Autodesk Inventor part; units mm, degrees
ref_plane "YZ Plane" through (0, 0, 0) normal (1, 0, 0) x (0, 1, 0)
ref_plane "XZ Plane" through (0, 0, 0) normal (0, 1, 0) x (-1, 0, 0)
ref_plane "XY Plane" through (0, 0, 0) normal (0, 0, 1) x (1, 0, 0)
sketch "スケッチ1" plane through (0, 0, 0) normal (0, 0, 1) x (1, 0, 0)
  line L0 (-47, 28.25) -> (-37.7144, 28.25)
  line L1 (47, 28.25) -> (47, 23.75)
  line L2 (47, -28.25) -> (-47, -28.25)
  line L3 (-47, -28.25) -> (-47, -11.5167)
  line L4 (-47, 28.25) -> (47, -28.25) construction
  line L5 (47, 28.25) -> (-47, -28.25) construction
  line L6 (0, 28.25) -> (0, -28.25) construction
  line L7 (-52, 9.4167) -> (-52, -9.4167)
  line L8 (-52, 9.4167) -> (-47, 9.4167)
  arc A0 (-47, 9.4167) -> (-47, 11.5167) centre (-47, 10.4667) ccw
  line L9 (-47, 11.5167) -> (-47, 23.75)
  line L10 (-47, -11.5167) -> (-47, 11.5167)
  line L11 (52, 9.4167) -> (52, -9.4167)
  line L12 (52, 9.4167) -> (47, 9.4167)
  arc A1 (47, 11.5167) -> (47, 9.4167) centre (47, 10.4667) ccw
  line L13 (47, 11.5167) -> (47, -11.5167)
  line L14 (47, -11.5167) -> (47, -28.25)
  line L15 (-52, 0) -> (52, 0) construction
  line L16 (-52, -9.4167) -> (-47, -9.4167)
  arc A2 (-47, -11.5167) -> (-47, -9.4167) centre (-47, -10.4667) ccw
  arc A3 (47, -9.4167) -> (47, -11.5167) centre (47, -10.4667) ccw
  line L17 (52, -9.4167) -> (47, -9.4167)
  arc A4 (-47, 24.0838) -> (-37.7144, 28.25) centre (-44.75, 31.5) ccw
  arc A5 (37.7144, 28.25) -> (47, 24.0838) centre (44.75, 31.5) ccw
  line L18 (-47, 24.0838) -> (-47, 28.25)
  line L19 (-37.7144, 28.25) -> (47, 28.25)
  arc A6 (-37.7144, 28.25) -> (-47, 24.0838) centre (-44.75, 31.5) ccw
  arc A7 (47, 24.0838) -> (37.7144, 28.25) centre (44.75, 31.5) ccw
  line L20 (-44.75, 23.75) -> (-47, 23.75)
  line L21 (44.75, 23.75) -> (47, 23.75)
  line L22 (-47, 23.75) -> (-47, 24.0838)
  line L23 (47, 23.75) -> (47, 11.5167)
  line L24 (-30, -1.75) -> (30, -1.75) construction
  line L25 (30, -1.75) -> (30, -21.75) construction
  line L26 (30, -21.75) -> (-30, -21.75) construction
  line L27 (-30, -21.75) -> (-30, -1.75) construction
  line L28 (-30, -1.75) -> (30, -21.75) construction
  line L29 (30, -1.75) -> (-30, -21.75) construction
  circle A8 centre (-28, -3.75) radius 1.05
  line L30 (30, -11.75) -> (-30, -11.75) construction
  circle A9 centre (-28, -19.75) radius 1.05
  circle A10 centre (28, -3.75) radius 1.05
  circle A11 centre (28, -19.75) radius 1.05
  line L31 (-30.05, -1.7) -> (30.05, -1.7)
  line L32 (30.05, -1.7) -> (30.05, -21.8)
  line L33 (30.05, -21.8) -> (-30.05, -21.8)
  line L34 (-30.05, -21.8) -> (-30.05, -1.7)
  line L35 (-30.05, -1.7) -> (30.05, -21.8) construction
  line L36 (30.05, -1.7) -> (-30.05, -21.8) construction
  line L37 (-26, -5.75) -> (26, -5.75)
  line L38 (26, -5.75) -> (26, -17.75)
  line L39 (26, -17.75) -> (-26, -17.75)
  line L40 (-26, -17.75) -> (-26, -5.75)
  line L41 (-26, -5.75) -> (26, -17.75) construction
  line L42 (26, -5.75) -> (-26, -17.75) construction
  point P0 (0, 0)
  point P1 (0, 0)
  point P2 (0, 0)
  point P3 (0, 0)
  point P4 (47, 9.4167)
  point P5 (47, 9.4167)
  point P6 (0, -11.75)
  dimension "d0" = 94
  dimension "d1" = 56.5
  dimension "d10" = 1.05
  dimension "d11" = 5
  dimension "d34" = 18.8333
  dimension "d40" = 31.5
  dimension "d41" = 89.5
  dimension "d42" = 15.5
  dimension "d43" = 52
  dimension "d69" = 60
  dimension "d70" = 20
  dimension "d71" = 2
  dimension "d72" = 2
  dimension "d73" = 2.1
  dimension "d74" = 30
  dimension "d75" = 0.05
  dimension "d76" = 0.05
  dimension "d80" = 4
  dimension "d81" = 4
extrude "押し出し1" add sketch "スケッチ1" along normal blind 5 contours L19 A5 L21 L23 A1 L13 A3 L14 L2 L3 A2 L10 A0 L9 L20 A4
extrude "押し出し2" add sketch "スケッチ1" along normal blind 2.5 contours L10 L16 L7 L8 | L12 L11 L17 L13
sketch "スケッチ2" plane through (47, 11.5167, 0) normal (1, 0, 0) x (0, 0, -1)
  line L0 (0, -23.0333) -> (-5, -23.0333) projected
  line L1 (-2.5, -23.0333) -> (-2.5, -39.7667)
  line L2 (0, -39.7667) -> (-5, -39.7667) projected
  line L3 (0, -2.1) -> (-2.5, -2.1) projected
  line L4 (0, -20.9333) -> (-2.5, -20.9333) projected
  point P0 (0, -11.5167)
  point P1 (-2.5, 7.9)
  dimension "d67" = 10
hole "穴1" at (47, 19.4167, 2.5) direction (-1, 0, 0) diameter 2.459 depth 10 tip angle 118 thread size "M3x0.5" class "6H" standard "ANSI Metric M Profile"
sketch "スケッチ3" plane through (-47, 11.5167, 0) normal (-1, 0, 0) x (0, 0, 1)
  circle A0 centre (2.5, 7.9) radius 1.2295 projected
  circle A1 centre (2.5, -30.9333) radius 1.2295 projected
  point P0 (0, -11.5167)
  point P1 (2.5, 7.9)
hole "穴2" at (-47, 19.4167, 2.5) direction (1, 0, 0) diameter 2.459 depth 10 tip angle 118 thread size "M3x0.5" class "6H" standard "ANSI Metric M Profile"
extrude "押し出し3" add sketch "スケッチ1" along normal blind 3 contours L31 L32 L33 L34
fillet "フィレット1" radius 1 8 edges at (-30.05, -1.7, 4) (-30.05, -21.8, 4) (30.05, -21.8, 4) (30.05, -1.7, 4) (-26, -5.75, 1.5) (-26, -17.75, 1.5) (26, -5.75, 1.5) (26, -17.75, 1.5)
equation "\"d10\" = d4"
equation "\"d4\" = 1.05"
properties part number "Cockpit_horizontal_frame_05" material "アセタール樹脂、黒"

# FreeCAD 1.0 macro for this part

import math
import FreeCAD as App
import Part
import Sketcher
from FreeCAD import Vector


def edges_at(feature, points):
    """Names of the edges that pass closest to the given points."""
    edges = feature.Shape.Edges
    near = lambda p: min(range(len(edges)), key=lambda i: edges[i].distToShape(Part.Vertex(*p))[0])
    return sorted({f"Edge{near(p) + 1}" for p in points})


def add_polygon(sketch, points):
    """Adds a closed chain of lines whose ends are joined by coincident constraints."""
    first, n = sketch.GeometryCount, len(points)
    for a, b in zip(points, points[1:] + points[:1]):
        sketch.addGeometry(Part.LineSegment(App.Vector(*a, 0), App.Vector(*b, 0)), False)
    for i in range(n):
        sketch.addConstraint(Sketcher.Constraint("Coincident", first + i, 2, first + (i + 1) % n, 1))

doc = App.newDocument("Part")
body = doc.addObject("PartDesign::Body", "Body")

# Sketch on XY plane
sketch1 = doc.addObject("Sketcher::SketchObject", "Sketch")
body.addObject(sketch1)
sketch1.AttachmentSupport = (doc.XY_Plane, [""])
sketch1.MapMode = "FlatFace"
sketch1.addGeometry(Part.LineSegment(Vector(37.7, 28.2, 0), Vector(-37.7, 28.2, 0)), False)  # 0
sketch1.addGeometry(Part.ArcOfCircle(Part.Circle(Vector(-44.8, 31.5, 0), Vector(0, 0, 1), 7.7), math.radians(-90), math.radians(-25)), False)  # 1
sketch1.addGeometry(Part.LineSegment(Vector(-44.8, 23.8, 0), Vector(-47, 23.8, 0)), False)  # 2
sketch1.addGeometry(Part.LineSegment(Vector(-47, 23.8, 0), Vector(-47, 11.5, 0)), False)  # 3
sketch1.addGeometry(Part.ArcOfCircle(Part.Circle(Vector(-47, 10.5, 0), Vector(0, 0, 1), 1), math.radians(-90), math.radians(90)), False)  # 4
sketch1.addGeometry(Part.LineSegment(Vector(-47, 9.4, 0), Vector(-47, -9.4, 0)), False)  # 5
sketch1.addGeometry(Part.ArcOfCircle(Part.Circle(Vector(-47, -10.5, 0), Vector(0, 0, 1), 1.1), math.radians(-90), math.radians(90)), False)  # 6
sketch1.addGeometry(Part.LineSegment(Vector(-47, -11.5, 0), Vector(-47, -28.2, 0)), False)  # 7
sketch1.addGeometry(Part.LineSegment(Vector(-47, -28.2, 0), Vector(47, -28.2, 0)), False)  # 8
sketch1.addGeometry(Part.LineSegment(Vector(47, -28.2, 0), Vector(47, -11.5, 0)), False)  # 9
sketch1.addGeometry(Part.ArcOfCircle(Part.Circle(Vector(47, -10.5, 0), Vector(0, 0, 1), 1), math.radians(90), math.radians(270)), False)  # 10
sketch1.addGeometry(Part.LineSegment(Vector(47, -9.4, 0), Vector(47, 9.4, 0)), False)  # 11
sketch1.addGeometry(Part.ArcOfCircle(Part.Circle(Vector(47, 10.5, 0), Vector(0, 0, 1), 1.1), math.radians(90), math.radians(270)), False)  # 12
sketch1.addGeometry(Part.LineSegment(Vector(47, 11.5, 0), Vector(47, 23.8, 0)), False)  # 13
sketch1.addGeometry(Part.LineSegment(Vector(47, 23.8, 0), Vector(44.8, 23.8, 0)), False)  # 14
sketch1.addGeometry(Part.ArcOfCircle(Part.Circle(Vector(44.8, 31.5, 0), Vector(0, 0, 1), 7.8), math.radians(-155), math.radians(-90)), False)  # 15
add_polygon(sketch1, [(-30.1, -21.8), (-30.1, -1.7), (30.1, -1.7), (30.1, -21.8)])  # lines 16-19
sketch1.addConstraint([
    Sketcher.Constraint("Coincident", 0, 2, 1, 2),
    Sketcher.Constraint("Tangent", 1, 1, 2, 1),
    Sketcher.Constraint("Coincident", 2, 2, 3, 1),
    Sketcher.Constraint("Coincident", 3, 2, 4, 2),
    Sketcher.Constraint("Coincident", 4, 1, 5, 1),
    Sketcher.Constraint("Coincident", 5, 2, 6, 2),
    Sketcher.Constraint("Coincident", 6, 1, 7, 1),
    Sketcher.Constraint("Coincident", 7, 2, 8, 1),
    Sketcher.Constraint("Coincident", 8, 2, 9, 1),
    Sketcher.Constraint("Coincident", 9, 2, 10, 2),
    Sketcher.Constraint("Coincident", 10, 1, 11, 1),
    Sketcher.Constraint("Coincident", 11, 2, 12, 2),
    Sketcher.Constraint("Coincident", 12, 1, 13, 1),
    Sketcher.Constraint("Coincident", 13, 2, 14, 1),
    Sketcher.Constraint("Tangent", 14, 2, 15, 2),
    Sketcher.Constraint("Coincident", 15, 1, 0, 1),
    Sketcher.Constraint("Horizontal", 0),
    Sketcher.Constraint("Horizontal", 2),
    Sketcher.Constraint("Vertical", 3),
    Sketcher.Constraint("Vertical", 5),
    Sketcher.Constraint("Vertical", 7),
    Sketcher.Constraint("Horizontal", 8),
    Sketcher.Constraint("Vertical", 9),
    Sketcher.Constraint("Vertical", 11),
    Sketcher.Constraint("Vertical", 13),
    Sketcher.Constraint("Horizontal", 14),
    Sketcher.Constraint("Vertical", 16),
    Sketcher.Constraint("Horizontal", 17),
    Sketcher.Constraint("Vertical", 18),
    Sketcher.Constraint("Horizontal", 19),
    Sketcher.Constraint("Equal", 4, 6),
    Sketcher.Constraint("Equal", 6, 10),
    Sketcher.Constraint("Equal", 10, 12),
    Sketcher.Constraint("Equal", 1, 15),
    Sketcher.Constraint("Symmetric", 4, 3, 10, 3, -1, 1),
    Sketcher.Constraint("Symmetric", 6, 3, 12, 3, -1, 1),
    Sketcher.Constraint("Symmetric", 6, 3, 10, 3, -2),
    Sketcher.Constraint("Symmetric", 1, 3, 15, 3, -2),
    Sketcher.Constraint("Vertical", 6, 3, 2, 2),
    Sketcher.Constraint("Vertical", 3, 2, 4, 1),
    Sketcher.Constraint("Vertical", 5, 2, 6, 1),
    Sketcher.Constraint("Vertical", 12, 3, 8, 2),
    Sketcher.Constraint("Vertical", 9, 2, 10, 1),
    Sketcher.Constraint("Vertical", 11, 2, 12, 1),
    Sketcher.Constraint("DistanceX", 8, 1, 8, 2, 94.0),
    Sketcher.Constraint("Radius", 1, 7.75),
    Sketcher.Constraint("Radius", 4, 1.05),
    Sketcher.Constraint("DistanceY", -1, 1, 1, 3, 31.5),
    Sketcher.Constraint("DistanceX", 1, 3, 15, 3, 89.5),
    Sketcher.Constraint("DistanceX", 17, 1, 17, 2, 60.1),
    Sketcher.Constraint("DistanceY", 5, 2, 5, 1, 18.8334),
    Sketcher.Constraint("DistanceY", 16, 1, 16, 2, 20.1),
    Sketcher.Constraint("DistanceY", 16, 2, -1, 1, 1.7),
    Sketcher.Constraint("DistanceY", 1, 1, 0, 2, 4.5),
    Sketcher.Constraint("DistanceY", 7, 2, 5, 2, 18.8333),
    Sketcher.Constraint("DistanceX", 16, 2, -1, 1, 30.05),
])
pad1 = doc.addObject("PartDesign::Pad", "Pad")
body.addObject(pad1)
pad1.Profile = sketch1
pad1.Length = 5

# Sketch on XY plane
sketch2 = doc.addObject("Sketcher::SketchObject", "Sketch001")
body.addObject(sketch2)
sketch2.AttachmentSupport = (doc.XY_Plane, [""])
sketch2.MapMode = "FlatFace"
add_polygon(sketch2, [(-47, -9), (-47, 9), (-52, 9), (-52, -9)])  # lines 0-3
add_polygon(sketch2, [(52, 9), (47, 9), (47, -9), (52, -9)])  # lines 4-7
sketch2.addConstraint([
    Sketcher.Constraint("Vertical", 0),
    Sketcher.Constraint("Horizontal", 1),
    Sketcher.Constraint("Vertical", 2),
    Sketcher.Constraint("Horizontal", 3),
    Sketcher.Constraint("Horizontal", 4),
    Sketcher.Constraint("Vertical", 5),
    Sketcher.Constraint("Horizontal", 6),
    Sketcher.Constraint("Vertical", 7),
    Sketcher.Constraint("Symmetric", 3, 2, 4, 2, -1, 1),
    Sketcher.Constraint("Symmetric", 1, 2, 6, 2, -1, 1),
    Sketcher.Constraint("Horizontal", 1, 2, 4, 2),
    Sketcher.Constraint("DistanceX", 1, 2, 1, 1, 5.0),
    Sketcher.Constraint("DistanceX", 1, 2, -1, 1, 52.0),
    Sketcher.Constraint("DistanceY", 0, 1, 0, 2, 18.8334),
])
pad2 = doc.addObject("PartDesign::Pad", "Pad001")
body.addObject(pad2)
pad2.Profile = sketch2
pad2.Length = 2.5

# Sketch on YZ plane
sketch3 = doc.addObject("Sketcher::SketchObject", "Sketch002")
body.addObject(sketch3)
sketch3.AttachmentSupport = (doc.YZ_Plane, [""])
sketch3.MapMode = "FlatFace"
sketch3.AttachmentOffset = App.Placement(Vector(0, 0, 47), App.Rotation())
sketch3.addGeometry(Part.Circle(Vector(19.4, 2.5, 0), Vector(0, 0, 1), 1.2), False)
sketch3.addConstraint([
    Sketcher.Constraint("Diameter", 0, 2.459),
    Sketcher.Constraint("DistanceY", -1, 1, 0, 3, 2.5),
    Sketcher.Constraint("DistanceX", -1, 1, 0, 3, 19.4167),
])
doc.recompute()
hole = doc.addObject("PartDesign::Hole", "Hole")
body.addObject(hole)
hole.Profile = sketch3
hole.ThreadType = "None"
hole.Diameter = 2.459
hole.DepthType = "Dimension"
hole.Depth = 10
hole.DrillPoint = "Angled"
hole.DrillPointAngle = 118

# Sketch on YZ plane
sketch4 = doc.addObject("Sketcher::SketchObject", "Sketch003")
body.addObject(sketch4)
sketch4.AttachmentSupport = (doc.YZ_Plane, [""])
sketch4.MapMode = "FlatFace"
sketch4.AttachmentOffset = App.Placement(Vector(0, 0, -47), App.Rotation())
sketch4.addGeometry(Part.Circle(Vector(19.4, 2.5, 0), Vector(0, 0, 1), 1.2), False)
sketch4.addConstraint([
    Sketcher.Constraint("Diameter", 0, 2.459),
    Sketcher.Constraint("DistanceY", -1, 1, 0, 3, 2.5),
    Sketcher.Constraint("DistanceX", -1, 1, 0, 3, 19.4167),
])
doc.recompute()
hole2 = doc.addObject("PartDesign::Hole", "Hole001")
body.addObject(hole2)
hole2.Profile = sketch4
hole2.ThreadType = "None"
hole2.Diameter = 2.459
hole2.DepthType = "Dimension"
hole2.Depth = 10
hole2.DrillPoint = "Angled"
hole2.DrillPointAngle = 118
hole2.Reversed = True

# Sketch on XY plane
sketch5 = doc.addObject("Sketcher::SketchObject", "Sketch004")
body.addObject(sketch5)
sketch5.AttachmentSupport = (doc.XY_Plane, [""])
sketch5.MapMode = "FlatFace"
add_polygon(sketch5, [(30.1, -1.7), (-30.1, -1.7), (-30.1, -21.8), (30.1, -21.8)])  # lines 0-3
sketch5.addGeometry(Part.Circle(Vector(-28, -19.8, 0), Vector(0, 0, 1), 1.1), False)  # 4
add_polygon(sketch5, [(-26, -17.8), (-26, -5.8), (26, -5.8), (26, -17.8)])  # lines 5-8
sketch5.addGeometry(Part.Circle(Vector(-28, -3.8, 0), Vector(0, 0, 1), 1.1), False)  # 9
sketch5.addGeometry(Part.Circle(Vector(28, -19.8, 0), Vector(0, 0, 1), 1.1), False)  # 10
sketch5.addGeometry(Part.Circle(Vector(28, -3.8, 0), Vector(0, 0, 1), 1.1), False)  # 11
sketch5.addConstraint([
    Sketcher.Constraint("Horizontal", 0),
    Sketcher.Constraint("Vertical", 1),
    Sketcher.Constraint("Horizontal", 2),
    Sketcher.Constraint("Vertical", 3),
    Sketcher.Constraint("Vertical", 5),
    Sketcher.Constraint("Horizontal", 6),
    Sketcher.Constraint("Vertical", 7),
    Sketcher.Constraint("Horizontal", 8),
    Sketcher.Constraint("Equal", 4, 9),
    Sketcher.Constraint("Equal", 9, 10),
    Sketcher.Constraint("Equal", 10, 11),
    Sketcher.Constraint("Symmetric", 4, 3, 10, 3, -2),
    Sketcher.Constraint("Symmetric", 9, 3, 11, 3, -2),
    Sketcher.Constraint("Vertical", 4, 3, 9, 3),
    Sketcher.Constraint("Diameter", 4, 2.1),
    Sketcher.Constraint("DistanceX", 6, 1, 6, 2, 52.0),
    Sketcher.Constraint("DistanceX", 9, 3, 5, 2, 2.0),
    Sketcher.Constraint("DistanceY", 5, 2, 9, 3, 2.0),
    Sketcher.Constraint("DistanceX", 6, 2, 11, 3, 2.0),
    Sketcher.Constraint("DistanceY", 10, 3, 7, 2, 2.0),
    Sketcher.Constraint("DistanceY", 5, 1, 5, 2, 12.0),
    Sketcher.Constraint("DistanceX", 0, 2, 0, 1, 60.1),
    Sketcher.Constraint("DistanceY", 1, 2, 1, 1, 20.1),
    Sketcher.Constraint("DistanceY", 0, 2, -1, 1, 1.7),
    Sketcher.Constraint("DistanceY", 4, 3, -1, 1, 19.75),
    Sketcher.Constraint("DistanceX", 0, 2, -1, 1, 30.05),
])
pad3 = doc.addObject("PartDesign::Pad", "Pad002")
body.addObject(pad3)
pad3.Profile = sketch5
pad3.Length = 3
doc.recompute()

fillet = doc.addObject("PartDesign::Fillet", "Fillet")
body.addObject(fillet)
fillet.Base = (pad3, edges_at(pad3, [
    (-30.05, -1.7, 4),
    (-30.05, -21.8, 4),
    (30.05, -21.8, 4),
    (30.05, -1.7, 4),
    (-26, -5.75, 1.5),
    (-26, -17.75, 1.5),
    (26, -5.75, 1.5),
    (26, -17.75, 1.5),
]))
fillet.Radius = 1

doc.recompute()
